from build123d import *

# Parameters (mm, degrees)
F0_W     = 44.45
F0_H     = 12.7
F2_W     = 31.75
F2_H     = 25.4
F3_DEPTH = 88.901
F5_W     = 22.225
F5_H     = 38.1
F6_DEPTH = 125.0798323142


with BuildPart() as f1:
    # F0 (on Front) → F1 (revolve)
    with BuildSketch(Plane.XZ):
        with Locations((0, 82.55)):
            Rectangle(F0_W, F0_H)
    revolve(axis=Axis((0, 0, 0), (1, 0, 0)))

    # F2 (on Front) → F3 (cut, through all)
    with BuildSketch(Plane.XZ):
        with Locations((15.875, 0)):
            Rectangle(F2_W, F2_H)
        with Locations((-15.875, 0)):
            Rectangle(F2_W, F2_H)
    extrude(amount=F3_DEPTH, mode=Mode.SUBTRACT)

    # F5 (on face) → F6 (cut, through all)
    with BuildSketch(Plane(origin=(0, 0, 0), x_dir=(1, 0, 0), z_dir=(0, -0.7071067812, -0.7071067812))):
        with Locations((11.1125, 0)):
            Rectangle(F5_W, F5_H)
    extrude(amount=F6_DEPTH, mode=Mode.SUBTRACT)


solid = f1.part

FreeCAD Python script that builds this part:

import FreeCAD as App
import Part
import Sketcher
Q = App.Units.Quantity


def add_polygon(sketch, points):
    """Adds a closed chain of lines whose ends are joined by coincident constraints."""
    first, n = sketch.GeometryCount, len(points)
    for a, b in zip(points, points[1:] + points[:1]):
        sketch.addGeometry(Part.LineSegment(App.Vector(*a, 0), App.Vector(*b, 0)), False)
    for i in range(n):
        sketch.addConstraint(Sketcher.Constraint("Coincident", first + i, 2, first + (i + 1) % n, 1))

doc = App.newDocument("Part")
params = doc.addObject("Spreadsheet::Sheet", "Params")
for row, (alias, value) in enumerate([
    ("sketch1_height", "0.5 in"),
    ("sketch1_width", "1.75 in"),
    ("revolution_angle", "360 deg"),
    ("sketch2_height", "1 in"),
    ("sketch2_width", "2.5 in"),
    ("sketch3_height", "1.5 in"),
    ("sketch3_width", "0.875 in"),
], start=1):
    params.set(f"A{row}", alias)
    params.set(f"B{row}", "=" + value)
    params.setAlias(f"B{row}", alias)

body = doc.addObject("PartDesign::Body", "Body")

sketch1 = body.newObject("Sketcher::SketchObject", "Sketch")
sketch1.AttachmentSupport = (doc.getObject("XZ_Plane"), [""])
sketch1.MapMode = "FlatFace"
add_polygon(sketch1, [(-22.225, 88.9), (-22.225, 76.2), (22.225, 76.2), (22.225, 88.9)])
sketch1.addConstraint([
    Sketcher.Constraint("Vertical", 0),
    Sketcher.Constraint("Horizontal", 1),
    Sketcher.Constraint("Vertical", 2),
    Sketcher.Constraint("Horizontal", 3),
    Sketcher.Constraint("DistanceY", 0, 2, 0, 1, Q("0.5 in")),
    Sketcher.Constraint("DistanceY", -1, 1, 0, 2, Q("3 in")),
    Sketcher.Constraint("DistanceX", 1, 1, 1, 2, Q("1.75 in")),
    Sketcher.Constraint("DistanceX", 0, 2, -1, 1, Q("0.875 in")),
])
sketch1.setExpression("Constraints[8]", "Params.sketch1_height")
sketch1.setExpression("Constraints[10]", "Params.sketch1_width")
revolution = body.newObject("PartDesign::Revolution", "Revolution")
revolution.Profile = sketch1
revolution.ReferenceAxis = (sketch1, ["H_Axis"])
revolution.setExpression("Angle", "Params.revolution_angle")

sketch2 = body.newObject("Sketcher::SketchObject", "Sketch001")
sketch2.AttachmentSupport = (doc.getObject("XZ_Plane"), [""])
sketch2.MapMode = "FlatFace"
add_polygon(sketch2, [(31.75, -12.7), (31.75, 12.7), (-31.75, 12.7), (-31.75, -12.7)])
sketch2.addConstraint([
    Sketcher.Constraint("Vertical", 0),
    Sketcher.Constraint("Horizontal", 1),
    Sketcher.Constraint("Vertical", 2),
    Sketcher.Constraint("Horizontal", 3),
    Sketcher.Constraint("Symmetric", 0, 2, 2, 2, -1, 1),
    Sketcher.Constraint("DistanceY", 0, 1, 0, 2, Q("1 in")),
    Sketcher.Constraint("DistanceX", 1, 2, 1, 1, Q("2.5 in")),
])
sketch2.setExpression("Constraints[9]", "Params.sketch2_height")
sketch2.setExpression("Constraints[10]", "Params.sketch2_width")
pocket1 = body.newObject("PartDesign::Pocket", "Pocket")
pocket1.Profile = sketch2
pocket1.Type = "ThroughAll"
pocket1.Reversed = True

sketch3 = body.newObject("Sketcher::SketchObject", "Sketch002")
sketch3.Placement = App.Placement(App.Vector(0, 0, 0), App.Rotation(App.Vector(1, 0, 0), App.Vector(0, -0.707106781, 0.707106781), App.Vector(0, -0.707106781, -0.707106781), "ZXY"))
add_polygon(sketch3, [(0, 19.05), (0, -19.05), (22.225, -19.05), (22.225, 19.05)])
sketch3.addConstraint([
    Sketcher.Constraint("Vertical", 0),
    Sketcher.Constraint("Horizontal", 1),
    Sketcher.Constraint("Vertical", 2),
    Sketcher.Constraint("Horizontal", 3),
    Sketcher.Constraint("Symmetric", 0, 2, 3, 2, -1, 1),
    Sketcher.Constraint("DistanceY", 0, 2, 0, 1, Q("1.5 in")),
    Sketcher.Constraint("DistanceX", 1, 1, 1, 2, Q("0.875 in")),
])
sketch3.setExpression("Constraints[9]", "Params.sketch3_height")
sketch3.setExpression("Constraints[10]", "Params.sketch3_width")
pocket2 = body.newObject("PartDesign::Pocket", "Pocket001")
pocket2.Profile = sketch3
pocket2.Type = "ThroughAll"
pocket2.Reversed = True

doc.recompute()
